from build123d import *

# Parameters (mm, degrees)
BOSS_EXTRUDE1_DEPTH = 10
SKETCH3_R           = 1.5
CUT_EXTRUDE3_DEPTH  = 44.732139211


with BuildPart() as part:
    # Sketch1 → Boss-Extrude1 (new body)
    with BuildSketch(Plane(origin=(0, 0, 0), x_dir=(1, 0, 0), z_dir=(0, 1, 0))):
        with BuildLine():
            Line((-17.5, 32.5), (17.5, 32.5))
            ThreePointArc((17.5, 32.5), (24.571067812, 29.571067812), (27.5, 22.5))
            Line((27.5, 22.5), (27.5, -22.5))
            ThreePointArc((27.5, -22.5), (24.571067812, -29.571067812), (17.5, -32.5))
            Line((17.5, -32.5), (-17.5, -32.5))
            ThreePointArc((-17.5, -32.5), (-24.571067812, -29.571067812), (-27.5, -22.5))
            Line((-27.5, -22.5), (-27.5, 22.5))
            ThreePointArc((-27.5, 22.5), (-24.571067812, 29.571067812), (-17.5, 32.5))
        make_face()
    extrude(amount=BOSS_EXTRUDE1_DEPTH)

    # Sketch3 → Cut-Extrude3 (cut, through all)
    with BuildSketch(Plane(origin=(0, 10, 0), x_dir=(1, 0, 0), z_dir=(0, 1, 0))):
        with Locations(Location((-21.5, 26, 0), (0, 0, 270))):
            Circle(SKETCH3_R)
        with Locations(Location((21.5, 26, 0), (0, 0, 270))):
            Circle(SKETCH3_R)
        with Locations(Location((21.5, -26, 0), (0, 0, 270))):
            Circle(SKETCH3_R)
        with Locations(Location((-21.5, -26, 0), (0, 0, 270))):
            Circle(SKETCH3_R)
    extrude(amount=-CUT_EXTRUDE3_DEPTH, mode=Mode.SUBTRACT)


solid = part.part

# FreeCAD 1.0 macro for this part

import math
import FreeCAD as App
import Part
import Sketcher
from FreeCAD import Vector
Q = App.Units.Quantity

doc = App.newDocument("Part")
body = doc.addObject("PartDesign::Body", "Body")

sketch1 = body.newObject("Sketcher::SketchObject", "Sketch")
sketch1.AttachmentSupport = (doc.getObject("XZ_Plane"), [""])
sketch1.MapMode = "FlatFace"
sketch1.addGeometry([
    Part.LineSegment(Vector(18, -32, 0), Vector(-18, -32, 0)),
    Part.ArcOfCircle(Part.Circle(Vector(-18, -22, 0), Vector(0, 0, 1), 10), math.radians(180), math.radians(270)),
    Part.LineSegment(Vector(-28, -22, 0), Vector(-28, 22, 0)),
    Part.ArcOfCircle(Part.Circle(Vector(-18, 22, 0), Vector(0, 0, 1), 10), math.radians(90), math.radians(180)),
    Part.LineSegment(Vector(-18, 32, 0), Vector(18, 32, 0)),
    Part.ArcOfCircle(Part.Circle(Vector(18, 22, 0), Vector(0, 0, 1), 10), math.radians(0), math.radians(90)),
    Part.LineSegment(Vector(28, 22, 0), Vector(28, -22, 0)),
    Part.ArcOfCircle(Part.Circle(Vector(18, -22, 0), Vector(0, 0, 1), 10), math.radians(-90), math.radians(0)),
], False)
sketch1.addConstraint([
    Sketcher.Constraint("Tangent", 0, 2, 1, 2),
    Sketcher.Constraint("Tangent", 1, 1, 2, 1),
    Sketcher.Constraint("Tangent", 2, 2, 3, 2),
    Sketcher.Constraint("Tangent", 3, 1, 4, 1),
    Sketcher.Constraint("Tangent", 4, 2, 5, 2),
    Sketcher.Constraint("Tangent", 5, 1, 6, 1),
    Sketcher.Constraint("Tangent", 6, 2, 7, 2),
    Sketcher.Constraint("Tangent", 7, 1, 0, 1),
    Sketcher.Constraint("Horizontal", 0),
    Sketcher.Constraint("Vertical", 2),
    Sketcher.Constraint("Horizontal", 4),
    Sketcher.Constraint("Vertical", 6),
    Sketcher.Constraint("Equal", 1, 3),
    Sketcher.Constraint("Equal", 3, 5),
    Sketcher.Constraint("Equal", 5, 7),
    Sketcher.Constraint("Symmetric", 1, 3, 5, 3, -1, 1),
    Sketcher.Constraint("Radius", 1, Q("10 mm")),
    Sketcher.Constraint("DistanceX", 0, 2, 0, 1, Q("35 mm")),
    Sketcher.Constraint("DistanceY", 2, 1, 2, 2, Q("45 mm")),
])
pad1 = body.newObject("PartDesign::Pad", "Pad")
pad1.Profile = sketch1
pad1.Length = 10
pad1.Reversed = True

sketch2 = body.newObject("Sketcher::SketchObject", "Sketch001")
sketch2.AttachmentSupport = (doc.getObject("XZ_Plane"), [""])
sketch2.MapMode = "FlatFace"
sketch2.AttachmentOffset = App.Placement(Vector(0, 0, -10), App.Rotation())
sketch2.addGeometry([
    Part.Circle(Vector(-21.5, -26, 0), Vector(0, 0, 1), 1.5),
    Part.Circle(Vector(21.5, -26, 0), Vector(0, 0, 1), 1.5),
    Part.Circle(Vector(21.5, 26, 0), Vector(0, 0, 1), 1.5),
    Part.Circle(Vector(-21.5, 26, 0), Vector(0, 0, 1), 1.5),
], False)
sketch2.addConstraint([
    Sketcher.Constraint("Equal", 0, 1),
    Sketcher.Constraint("Equal", 1, 2),
    Sketcher.Constraint("Equal", 2, 3),
    Sketcher.Constraint("Symmetric", 0, 3, 2, 3, -1, 1),
    Sketcher.Constraint("Symmetric", 1, 3, 3, 3, -1, 1),
    Sketcher.Constraint("Symmetric", 0, 3, 1, 3, -2),
    Sketcher.Constraint("Diameter", 0, Q("3 mm")),
    Sketcher.Constraint("DistanceY", 0, 3, -1, 1, Q("26 mm")),
    Sketcher.Constraint("DistanceX", 0, 3, 1, 3, Q("43 mm")),
])
pocket1 = body.newObject("PartDesign::Pocket", "Pocket")
pocket1.Profile = sketch2
pocket1.Type = "ThroughAll"
pocket1.Reversed = True

doc.recompute()
